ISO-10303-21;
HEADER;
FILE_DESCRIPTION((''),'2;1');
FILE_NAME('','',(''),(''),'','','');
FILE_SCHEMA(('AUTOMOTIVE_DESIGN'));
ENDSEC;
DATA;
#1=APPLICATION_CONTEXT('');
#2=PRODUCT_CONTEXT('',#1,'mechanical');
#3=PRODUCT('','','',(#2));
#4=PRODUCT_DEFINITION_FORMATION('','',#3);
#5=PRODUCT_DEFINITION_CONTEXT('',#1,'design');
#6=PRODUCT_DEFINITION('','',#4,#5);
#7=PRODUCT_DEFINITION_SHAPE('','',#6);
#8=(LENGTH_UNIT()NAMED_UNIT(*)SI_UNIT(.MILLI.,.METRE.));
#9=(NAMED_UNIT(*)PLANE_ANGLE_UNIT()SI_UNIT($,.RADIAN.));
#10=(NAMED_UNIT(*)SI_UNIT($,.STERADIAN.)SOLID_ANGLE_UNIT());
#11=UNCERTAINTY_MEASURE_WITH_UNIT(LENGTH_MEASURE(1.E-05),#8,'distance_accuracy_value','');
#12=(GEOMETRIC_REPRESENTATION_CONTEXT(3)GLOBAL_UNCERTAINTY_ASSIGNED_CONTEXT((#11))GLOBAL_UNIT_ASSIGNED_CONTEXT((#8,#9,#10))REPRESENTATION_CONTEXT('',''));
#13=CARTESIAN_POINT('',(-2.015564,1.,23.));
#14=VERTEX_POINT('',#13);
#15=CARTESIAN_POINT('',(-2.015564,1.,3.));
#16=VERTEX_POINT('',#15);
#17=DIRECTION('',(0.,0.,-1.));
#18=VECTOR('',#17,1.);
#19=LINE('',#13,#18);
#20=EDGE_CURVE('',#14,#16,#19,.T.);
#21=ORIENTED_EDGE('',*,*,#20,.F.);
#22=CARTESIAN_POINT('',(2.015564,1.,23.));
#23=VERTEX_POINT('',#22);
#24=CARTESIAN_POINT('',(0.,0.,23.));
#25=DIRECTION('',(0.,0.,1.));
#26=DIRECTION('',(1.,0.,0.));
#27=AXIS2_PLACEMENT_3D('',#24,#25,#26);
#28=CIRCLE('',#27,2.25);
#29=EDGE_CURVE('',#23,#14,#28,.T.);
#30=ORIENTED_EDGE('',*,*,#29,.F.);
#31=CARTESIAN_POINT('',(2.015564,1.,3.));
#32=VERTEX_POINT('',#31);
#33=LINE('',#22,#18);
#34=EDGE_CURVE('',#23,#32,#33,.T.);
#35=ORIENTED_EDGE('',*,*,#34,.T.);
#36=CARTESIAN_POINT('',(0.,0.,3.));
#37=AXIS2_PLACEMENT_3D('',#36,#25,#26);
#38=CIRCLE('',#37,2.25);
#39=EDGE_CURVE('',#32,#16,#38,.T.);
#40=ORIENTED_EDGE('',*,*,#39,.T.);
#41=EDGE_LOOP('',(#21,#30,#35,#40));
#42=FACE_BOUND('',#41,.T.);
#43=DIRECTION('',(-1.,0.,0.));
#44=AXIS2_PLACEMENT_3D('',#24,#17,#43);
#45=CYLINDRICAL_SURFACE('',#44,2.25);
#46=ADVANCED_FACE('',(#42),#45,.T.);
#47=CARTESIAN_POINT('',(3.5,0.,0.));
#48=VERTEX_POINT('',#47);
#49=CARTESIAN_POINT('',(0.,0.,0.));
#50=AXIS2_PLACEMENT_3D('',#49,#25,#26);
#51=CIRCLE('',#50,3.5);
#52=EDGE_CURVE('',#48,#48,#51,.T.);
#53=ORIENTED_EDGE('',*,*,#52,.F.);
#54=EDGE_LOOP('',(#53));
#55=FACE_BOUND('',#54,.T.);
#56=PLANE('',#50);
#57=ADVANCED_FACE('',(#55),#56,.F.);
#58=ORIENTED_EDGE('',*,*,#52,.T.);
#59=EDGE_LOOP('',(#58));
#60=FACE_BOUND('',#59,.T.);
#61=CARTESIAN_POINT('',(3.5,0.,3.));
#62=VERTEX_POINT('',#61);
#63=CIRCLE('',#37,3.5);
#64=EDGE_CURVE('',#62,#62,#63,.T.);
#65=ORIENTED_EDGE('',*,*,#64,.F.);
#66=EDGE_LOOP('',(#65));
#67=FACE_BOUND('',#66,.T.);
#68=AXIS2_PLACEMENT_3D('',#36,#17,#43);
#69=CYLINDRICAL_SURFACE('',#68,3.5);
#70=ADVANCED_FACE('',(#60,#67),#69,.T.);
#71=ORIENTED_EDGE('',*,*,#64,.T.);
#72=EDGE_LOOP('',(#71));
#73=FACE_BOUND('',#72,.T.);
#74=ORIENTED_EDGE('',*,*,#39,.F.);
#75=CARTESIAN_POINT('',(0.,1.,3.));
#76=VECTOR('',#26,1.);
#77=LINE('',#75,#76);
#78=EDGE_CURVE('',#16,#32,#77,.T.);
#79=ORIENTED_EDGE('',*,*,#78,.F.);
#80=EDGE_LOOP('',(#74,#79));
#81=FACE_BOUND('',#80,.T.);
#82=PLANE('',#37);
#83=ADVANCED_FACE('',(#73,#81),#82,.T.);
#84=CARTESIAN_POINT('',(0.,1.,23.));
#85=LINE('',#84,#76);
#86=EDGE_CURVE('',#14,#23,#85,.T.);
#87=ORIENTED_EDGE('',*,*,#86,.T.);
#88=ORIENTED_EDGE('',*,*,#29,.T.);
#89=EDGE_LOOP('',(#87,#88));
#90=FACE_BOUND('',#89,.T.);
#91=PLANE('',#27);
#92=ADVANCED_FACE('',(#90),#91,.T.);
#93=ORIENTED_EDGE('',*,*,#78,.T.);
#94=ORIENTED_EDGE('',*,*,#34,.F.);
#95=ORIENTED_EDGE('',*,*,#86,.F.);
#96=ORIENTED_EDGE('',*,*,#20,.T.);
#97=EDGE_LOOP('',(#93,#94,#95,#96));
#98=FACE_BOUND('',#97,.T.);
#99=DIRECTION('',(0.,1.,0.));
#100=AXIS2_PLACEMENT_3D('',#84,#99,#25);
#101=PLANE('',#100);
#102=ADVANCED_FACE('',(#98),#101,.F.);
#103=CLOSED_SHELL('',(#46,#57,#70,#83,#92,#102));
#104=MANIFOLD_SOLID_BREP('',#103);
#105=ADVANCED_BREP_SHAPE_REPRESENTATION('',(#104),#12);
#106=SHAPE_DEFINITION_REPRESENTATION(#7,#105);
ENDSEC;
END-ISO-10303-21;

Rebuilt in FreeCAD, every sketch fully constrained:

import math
import FreeCAD as App
import Part
import Sketcher

V = App.Vector
Q = App.Units.Quantity

doc = App.newDocument("Part")
body = doc.addObject("PartDesign::Body", "Body")

# Sketch on XY plane
sketch1 = doc.addObject("Sketcher::SketchObject", "Sketch")
body.addObject(sketch1)
sketch1.AttachmentSupport = (doc.XY_Plane, [""])
sketch1.MapMode = "FlatFace"
sketch1.addGeometry([
    Part.ArcOfCircle(Part.Circle(V(0, 0, 0), V(0, 0, 1), 3.5), math.radians(16.60155), math.radians(163.39845)),
    Part.ArcOfCircle(Part.Circle(V(0, 0, 0), V(0, 0, 1), 3.5), math.radians(163.39845), math.radians(360)),
    Part.ArcOfCircle(Part.Circle(V(0, 0, 0), V(0, 0, 1), 3.5), math.radians(0), math.radians(16.60155)),
], False)
sketch1.addConstraint([
    Sketcher.Constraint("Tangent", 0, 2, 1, 1),
    Sketcher.Constraint("Tangent", 1, 2, 2, 1),
    Sketcher.Constraint("Tangent", 2, 2, 0, 1),
    Sketcher.Constraint("Coincident", 0, 3, -1, 1),
    Sketcher.Constraint("PointOnObject", 1, 2, -1),
    Sketcher.Constraint("Horizontal", 0, 2, 2, 2),
    Sketcher.Constraint("Radius", 0, Q("3.5 mm")),
    Sketcher.Constraint("DistanceY", -1, 1, 0, 2, Q("1 mm")),
])
pad1 = doc.addObject("PartDesign::Pad", "Pad")
body.addObject(pad1)
pad1.Profile = sketch1
pad1.Length = 3

# Sketch on XY plane
sketch2 = doc.addObject("Sketcher::SketchObject", "Sketch001")
body.addObject(sketch2)
sketch2.AttachmentSupport = (doc.XY_Plane, [""])
sketch2.MapMode = "FlatFace"
sketch2.AttachmentOffset = App.Placement(V(0, 0, 3), App.Rotation())
sketch2.addGeometry([
    Part.ArcOfCircle(Part.Circle(V(0, 0, 0), V(0, 0, 1), 2.25), math.radians(26.3878), math.radians(153.6122)),
    Part.LineSegment(V(-2.015564, 1, 0), V(2.015564, 1, 0)),
], False)
sketch2.addConstraint([
    Sketcher.Constraint("Coincident", 0, 1, 1, 2),
    Sketcher.Constraint("Coincident", 1, 1, 0, 2),
    Sketcher.Constraint("Horizontal", 1),
    Sketcher.Constraint("Coincident", 0, 3, -1, 1),
    Sketcher.Constraint("Radius", 0, Q("2.25 mm")),
    Sketcher.Constraint("DistanceY", -1, 1, 0, 1, Q("1 mm")),
])
pad2 = doc.addObject("PartDesign::Pad", "Pad001")
body.addObject(pad2)
pad2.Profile = sketch2
pad2.Length = 20

doc.recompute()
